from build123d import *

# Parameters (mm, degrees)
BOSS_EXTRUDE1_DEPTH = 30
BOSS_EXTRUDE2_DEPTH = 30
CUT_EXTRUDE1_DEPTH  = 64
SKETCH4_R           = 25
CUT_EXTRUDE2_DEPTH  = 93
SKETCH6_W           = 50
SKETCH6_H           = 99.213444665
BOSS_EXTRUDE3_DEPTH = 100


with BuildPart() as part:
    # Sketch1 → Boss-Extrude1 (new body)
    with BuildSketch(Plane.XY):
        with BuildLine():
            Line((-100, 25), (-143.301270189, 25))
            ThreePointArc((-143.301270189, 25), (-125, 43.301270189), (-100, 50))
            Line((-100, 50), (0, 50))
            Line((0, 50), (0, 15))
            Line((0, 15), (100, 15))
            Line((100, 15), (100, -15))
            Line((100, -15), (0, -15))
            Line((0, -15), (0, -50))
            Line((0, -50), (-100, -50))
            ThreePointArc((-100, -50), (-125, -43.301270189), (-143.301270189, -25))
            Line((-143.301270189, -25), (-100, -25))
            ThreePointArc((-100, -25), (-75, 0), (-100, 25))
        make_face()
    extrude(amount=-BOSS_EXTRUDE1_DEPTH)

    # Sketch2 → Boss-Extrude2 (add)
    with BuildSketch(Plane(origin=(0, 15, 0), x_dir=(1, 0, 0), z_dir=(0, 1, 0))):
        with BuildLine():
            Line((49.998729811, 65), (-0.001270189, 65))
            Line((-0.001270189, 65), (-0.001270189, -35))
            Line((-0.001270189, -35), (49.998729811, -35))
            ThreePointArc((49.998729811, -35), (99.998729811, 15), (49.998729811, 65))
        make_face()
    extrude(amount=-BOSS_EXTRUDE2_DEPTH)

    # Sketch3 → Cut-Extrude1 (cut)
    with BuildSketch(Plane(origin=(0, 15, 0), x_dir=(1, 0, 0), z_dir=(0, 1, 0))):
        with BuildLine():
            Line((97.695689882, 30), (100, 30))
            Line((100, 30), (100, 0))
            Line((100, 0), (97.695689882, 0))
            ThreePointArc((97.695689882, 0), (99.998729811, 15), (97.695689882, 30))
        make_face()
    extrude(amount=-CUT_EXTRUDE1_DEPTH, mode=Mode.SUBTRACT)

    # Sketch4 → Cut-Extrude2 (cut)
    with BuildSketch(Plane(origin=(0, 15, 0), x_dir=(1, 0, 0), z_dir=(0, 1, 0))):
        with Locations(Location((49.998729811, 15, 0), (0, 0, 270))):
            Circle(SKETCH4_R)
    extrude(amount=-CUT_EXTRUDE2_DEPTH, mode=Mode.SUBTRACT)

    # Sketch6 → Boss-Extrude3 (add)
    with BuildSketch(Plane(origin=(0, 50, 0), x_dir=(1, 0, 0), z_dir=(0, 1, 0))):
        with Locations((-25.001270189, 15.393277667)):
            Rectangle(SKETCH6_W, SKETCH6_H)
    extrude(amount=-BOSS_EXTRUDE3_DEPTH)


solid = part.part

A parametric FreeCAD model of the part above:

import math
import FreeCAD as App
import Part
import Sketcher


def add_polygon(sketch, points):
    """Adds a closed chain of lines whose ends are joined by coincident constraints."""
    first, n = sketch.GeometryCount, len(points)
    for a, b in zip(points, points[1:] + points[:1]):
        sketch.addGeometry(Part.LineSegment(App.Vector(*a, 0), App.Vector(*b, 0)), False)
    for i in range(n):
        sketch.addConstraint(Sketcher.Constraint("Coincident", first + i, 2, first + (i + 1) % n, 1))

doc = App.newDocument("Part")
body = doc.addObject("PartDesign::Body", "Body")

# Sketch on XY plane
sketch1 = body.newObject("Sketcher::SketchObject", "Sketch")
sketch1.AttachmentSupport = (doc.getObject("XY_Plane"), [""])
sketch1.MapMode = "FlatFace"
sketch1.addGeometry([
    Part.LineSegment(App.Vector(-143, 25, 0), App.Vector(-100, 25, 0)),  # 0
    Part.ArcOfCircle(Part.Circle(App.Vector(-100, 0, 0), App.Vector(0, 0, 1), 25), math.radians(-90), math.radians(90)),  # 1
    Part.LineSegment(App.Vector(-100, -25, 0), App.Vector(-143, -25, 0)),  # 2
    Part.ArcOfCircle(Part.Circle(App.Vector(-100, 0, 0), App.Vector(0, 0, 1), 50), math.radians(-150), math.radians(-90)),  # 3
    Part.LineSegment(App.Vector(-100, -50, 0), App.Vector(0, -50, 0)),  # 4
    Part.LineSegment(App.Vector(0, -50, 0), App.Vector(0, -15, 0)),  # 5
    Part.LineSegment(App.Vector(0, -15, 0), App.Vector(100, -15, 0)),  # 6
    Part.LineSegment(App.Vector(100, -15, 0), App.Vector(100, 15, 0)),  # 7
    Part.LineSegment(App.Vector(100, 15, 0), App.Vector(0, 15, 0)),  # 8
    Part.LineSegment(App.Vector(0, 15, 0), App.Vector(0, 50, 0)),  # 9
    Part.LineSegment(App.Vector(0, 50, 0), App.Vector(-100, 50, 0)),  # 10
    Part.ArcOfCircle(Part.Circle(App.Vector(-100, 0, 0), App.Vector(0, 0, 1), 50), math.radians(90), math.radians(150)),  # 11
], False)
sketch1.addConstraint([
    Sketcher.Constraint("Tangent", 0, 2, 1, 2),
    Sketcher.Constraint("Tangent", 1, 1, 2, 1),
    Sketcher.Constraint("Coincident", 2, 2, 3, 1),
    Sketcher.Constraint("Tangent", 3, 2, 4, 1),
    Sketcher.Constraint("Coincident", 4, 2, 5, 1),
    Sketcher.Constraint("Coincident", 5, 2, 6, 1),
    Sketcher.Constraint("Coincident", 6, 2, 7, 1),
    Sketcher.Constraint("Coincident", 7, 2, 8, 1),
    Sketcher.Constraint("Coincident", 8, 2, 9, 1),
    Sketcher.Constraint("Coincident", 9, 2, 10, 1),
    Sketcher.Constraint("Tangent", 10, 2, 11, 1),
    Sketcher.Constraint("Coincident", 11, 2, 0, 1),
    Sketcher.Constraint("Horizontal", 0),
    Sketcher.Constraint("Horizontal", 2),
    Sketcher.Constraint("Horizontal", 4),
    Sketcher.Constraint("Vertical", 5),
    Sketcher.Constraint("Horizontal", 6),
    Sketcher.Constraint("Vertical", 7),
    Sketcher.Constraint("Horizontal", 8),
    Sketcher.Constraint("Vertical", 9),
    Sketcher.Constraint("Horizontal", 10),
    Sketcher.Constraint("Coincident", 3, 3, 1, 3),
    Sketcher.Constraint("Coincident", 11, 3, 1, 3),
    Sketcher.Constraint("Equal", 3, 11),
    Sketcher.Constraint("Symmetric", 5, 2, 8, 2, -1, 1),
    Sketcher.Constraint("Symmetric", 4, 2, 9, 2, -1),
    Sketcher.Constraint("Equal", 4, 6),
    Sketcher.Constraint("Radius", 1, 25.0),
    Sketcher.Constraint("Radius", 3, 50.0),
    Sketcher.Constraint("DistanceX", 4, 1, 4, 2, 100.0),
    Sketcher.Constraint("DistanceY", 5, 1, 5, 2, 35.0),
])
pad1 = body.newObject("PartDesign::Pad", "Pad")
pad1.Profile = sketch1
pad1.Length = 30
pad1.Reversed = True

# Sketch on XZ plane
sketch2 = body.newObject("Sketcher::SketchObject", "Sketch001")
sketch2.AttachmentSupport = (doc.getObject("XZ_Plane"), [""])
sketch2.MapMode = "FlatFace"
sketch2.AttachmentOffset = App.Placement(App.Vector(0, 0, -15), App.Rotation())
sketch2.addGeometry([
    Part.LineSegment(App.Vector(50, -65, 0), App.Vector(0, -65, 0)),
    Part.LineSegment(App.Vector(0, -65, 0), App.Vector(0, 35, 0)),
    Part.LineSegment(App.Vector(0, 35, 0), App.Vector(50, 35, 0)),
    Part.ArcOfCircle(Part.Circle(App.Vector(50, -15, 0), App.Vector(0, 0, 1), 50), math.radians(-90), math.radians(90)),
], False)
sketch2.addConstraint([
    Sketcher.Constraint("Coincident", 0, 2, 1, 1),
    Sketcher.Constraint("Coincident", 1, 2, 2, 1),
    Sketcher.Constraint("Tangent", 2, 2, 3, 2),
    Sketcher.Constraint("Tangent", 3, 1, 0, 1),
    Sketcher.Constraint("Horizontal", 0),
    Sketcher.Constraint("Vertical", 1),
    Sketcher.Constraint("Horizontal", 2),
    Sketcher.Constraint("Radius", 3, 50.0),
    Sketcher.Constraint("DistanceX", 0, 2, 0, 1, 50.0),
    Sketcher.Constraint("DistanceY", 3, 3, -1, 1, 15.0),
    Sketcher.Constraint("DistanceX", -1, 1, 3, 3, 49.99873),
])
pad2 = body.newObject("PartDesign::Pad", "Pad001")
pad2.Profile = sketch2
pad2.Length = 30

# Sketch on XZ plane
sketch3 = body.newObject("Sketcher::SketchObject", "Sketch002")
sketch3.AttachmentSupport = (doc.getObject("XZ_Plane"), [""])
sketch3.MapMode = "FlatFace"
sketch3.AttachmentOffset = App.Placement(App.Vector(0, 0, -15), App.Rotation())
sketch3.addGeometry([
    Part.LineSegment(App.Vector(100, -30, 0), App.Vector(97.7, -30, 0)),
    Part.ArcOfCircle(Part.Circle(App.Vector(50, -15, 0), App.Vector(0, 0, 1), 50), math.radians(-17), math.radians(17)),
    Part.LineSegment(App.Vector(97.7, 0, 0), App.Vector(100, 0, 0)),
    Part.LineSegment(App.Vector(100, 0, 0), App.Vector(100, -30, 0)),
], False)
sketch3.addConstraint([
    Sketcher.Constraint("Coincident", 0, 2, 1, 1),
    Sketcher.Constraint("Coincident", 1, 2, 2, 1),
    Sketcher.Constraint("Coincident", 2, 2, 3, 1),
    Sketcher.Constraint("Coincident", 3, 2, 0, 1),
    Sketcher.Constraint("Horizontal", 0),
    Sketcher.Constraint("Horizontal", 2),
    Sketcher.Constraint("Vertical", 3),
    Sketcher.Constraint("PointOnObject", 1, 2, -1),
    Sketcher.Constraint("Vertical", 0, 2, 1, 2),
    Sketcher.Constraint("Radius", 1, 50.0),
    Sketcher.Constraint("DistanceY", 3, 2, 3, 1, 30.0),
    Sketcher.Constraint("DistanceX", -1, 1, 2, 2, 100.0),
    Sketcher.Constraint("DistanceX", 0, 2, 0, 1, 2.30431),
])
pocket1 = body.newObject("PartDesign::Pocket", "Pocket")
pocket1.Profile = sketch3
pocket1.Length = 64
pocket1.Reversed = True

# Sketch on XZ plane
sketch4 = body.newObject("Sketcher::SketchObject", "Sketch003")
sketch4.AttachmentSupport = (doc.getObject("XZ_Plane"), [""])
sketch4.MapMode = "FlatFace"
sketch4.AttachmentOffset = App.Placement(App.Vector(0, 0, -15), App.Rotation())
sketch4.addGeometry(Part.Circle(App.Vector(50, -15, 0), App.Vector(0, 0, 1), 25), False)
sketch4.addConstraint([
    Sketcher.Constraint("Diameter", 0, 50.0),
    Sketcher.Constraint("DistanceY", 0, 3, -1, 1, 15.0),
    Sketcher.Constraint("DistanceX", -1, 1, 0, 3, 49.99873),
])
pocket2 = body.newObject("PartDesign::Pocket", "Pocket001")
pocket2.Profile = sketch4
pocket2.Length = 93
pocket2.Reversed = True

# Sketch on XZ plane
sketch5 = body.newObject("Sketcher::SketchObject", "Sketch004")
sketch5.AttachmentSupport = (doc.getObject("XZ_Plane"), [""])
sketch5.MapMode = "FlatFace"
sketch5.AttachmentOffset = App.Placement(App.Vector(0, 0, -50), App.Rotation())
add_polygon(sketch5, [(-50, -65), (-50, 34), (0, 34), (0, -65)])  # lines 0-3
sketch5.addConstraint([
    Sketcher.Constraint("Vertical", 0),
    Sketcher.Constraint("Horizontal", 1),
    Sketcher.Constraint("Vertical", 2),
    Sketcher.Constraint("Horizontal", 3),
    Sketcher.Constraint("DistanceX", 1, 1, 1, 2, 50.0),
    Sketcher.Constraint("DistanceY", 2, 2, -1, 1, 65.0),
    Sketcher.Constraint("DistanceY", 0, 1, 0, 2, 99.213445),
    Sketcher.Constraint("DistanceX", 0, 2, -1, 1, 50.00127),
])
pad3 = body.newObject("PartDesign::Pad", "Pad002")
pad3.Profile = sketch5
pad3.Length = 100

doc.recompute()
